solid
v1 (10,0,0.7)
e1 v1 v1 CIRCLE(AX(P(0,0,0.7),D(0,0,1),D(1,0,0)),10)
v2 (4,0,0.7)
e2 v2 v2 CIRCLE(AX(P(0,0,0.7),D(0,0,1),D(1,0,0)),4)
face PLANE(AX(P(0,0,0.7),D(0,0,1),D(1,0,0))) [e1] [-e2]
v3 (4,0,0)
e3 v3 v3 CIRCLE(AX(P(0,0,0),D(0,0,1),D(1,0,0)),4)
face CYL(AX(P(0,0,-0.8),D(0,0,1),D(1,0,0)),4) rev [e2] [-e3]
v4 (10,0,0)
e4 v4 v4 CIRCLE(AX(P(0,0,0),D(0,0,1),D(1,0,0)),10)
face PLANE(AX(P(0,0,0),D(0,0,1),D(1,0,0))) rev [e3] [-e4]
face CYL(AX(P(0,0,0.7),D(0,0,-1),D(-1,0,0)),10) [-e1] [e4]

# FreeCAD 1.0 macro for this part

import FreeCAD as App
import Part
import Sketcher
from FreeCAD import Vector

doc = App.newDocument("Part")
body = doc.addObject("PartDesign::Body", "Body")

# Sketch on XY plane
sketch1 = body.newObject("Sketcher::SketchObject", "Sketch")
sketch1.AttachmentSupport = (doc.getObject("XY_Plane"), [""])
sketch1.MapMode = "FlatFace"
sketch1.addGeometry(Part.Circle(Vector(0, 0, 0), Vector(0, 0, 1), 10), False)
sketch1.addConstraint([
    Sketcher.Constraint("Coincident", 0, 3, -1, 1),
    Sketcher.Constraint("Diameter", 0, 20.0),
])
pad1 = body.newObject("PartDesign::Pad", "Pad")
pad1.Profile = sketch1
pad1.Length = 0.7

# Sketch on XY plane
sketch2 = body.newObject("Sketcher::SketchObject", "Sketch001")
sketch2.AttachmentSupport = (doc.getObject("XY_Plane"), [""])
sketch2.MapMode = "FlatFace"
sketch2.AttachmentOffset = App.Placement(Vector(0, 0, 0.7), App.Rotation())
sketch2.addGeometry(Part.Circle(Vector(0, 0, 0), Vector(0, 0, 1), 4), False)
sketch2.addConstraint([
    Sketcher.Constraint("Coincident", 0, 3, -1, 1),
    Sketcher.Constraint("Diameter", 0, 8.0),
])
pocket1 = body.newObject("PartDesign::Pocket", "Pocket")
pocket1.Profile = sketch2
pocket1.Length = 1.5

doc.recompute()
